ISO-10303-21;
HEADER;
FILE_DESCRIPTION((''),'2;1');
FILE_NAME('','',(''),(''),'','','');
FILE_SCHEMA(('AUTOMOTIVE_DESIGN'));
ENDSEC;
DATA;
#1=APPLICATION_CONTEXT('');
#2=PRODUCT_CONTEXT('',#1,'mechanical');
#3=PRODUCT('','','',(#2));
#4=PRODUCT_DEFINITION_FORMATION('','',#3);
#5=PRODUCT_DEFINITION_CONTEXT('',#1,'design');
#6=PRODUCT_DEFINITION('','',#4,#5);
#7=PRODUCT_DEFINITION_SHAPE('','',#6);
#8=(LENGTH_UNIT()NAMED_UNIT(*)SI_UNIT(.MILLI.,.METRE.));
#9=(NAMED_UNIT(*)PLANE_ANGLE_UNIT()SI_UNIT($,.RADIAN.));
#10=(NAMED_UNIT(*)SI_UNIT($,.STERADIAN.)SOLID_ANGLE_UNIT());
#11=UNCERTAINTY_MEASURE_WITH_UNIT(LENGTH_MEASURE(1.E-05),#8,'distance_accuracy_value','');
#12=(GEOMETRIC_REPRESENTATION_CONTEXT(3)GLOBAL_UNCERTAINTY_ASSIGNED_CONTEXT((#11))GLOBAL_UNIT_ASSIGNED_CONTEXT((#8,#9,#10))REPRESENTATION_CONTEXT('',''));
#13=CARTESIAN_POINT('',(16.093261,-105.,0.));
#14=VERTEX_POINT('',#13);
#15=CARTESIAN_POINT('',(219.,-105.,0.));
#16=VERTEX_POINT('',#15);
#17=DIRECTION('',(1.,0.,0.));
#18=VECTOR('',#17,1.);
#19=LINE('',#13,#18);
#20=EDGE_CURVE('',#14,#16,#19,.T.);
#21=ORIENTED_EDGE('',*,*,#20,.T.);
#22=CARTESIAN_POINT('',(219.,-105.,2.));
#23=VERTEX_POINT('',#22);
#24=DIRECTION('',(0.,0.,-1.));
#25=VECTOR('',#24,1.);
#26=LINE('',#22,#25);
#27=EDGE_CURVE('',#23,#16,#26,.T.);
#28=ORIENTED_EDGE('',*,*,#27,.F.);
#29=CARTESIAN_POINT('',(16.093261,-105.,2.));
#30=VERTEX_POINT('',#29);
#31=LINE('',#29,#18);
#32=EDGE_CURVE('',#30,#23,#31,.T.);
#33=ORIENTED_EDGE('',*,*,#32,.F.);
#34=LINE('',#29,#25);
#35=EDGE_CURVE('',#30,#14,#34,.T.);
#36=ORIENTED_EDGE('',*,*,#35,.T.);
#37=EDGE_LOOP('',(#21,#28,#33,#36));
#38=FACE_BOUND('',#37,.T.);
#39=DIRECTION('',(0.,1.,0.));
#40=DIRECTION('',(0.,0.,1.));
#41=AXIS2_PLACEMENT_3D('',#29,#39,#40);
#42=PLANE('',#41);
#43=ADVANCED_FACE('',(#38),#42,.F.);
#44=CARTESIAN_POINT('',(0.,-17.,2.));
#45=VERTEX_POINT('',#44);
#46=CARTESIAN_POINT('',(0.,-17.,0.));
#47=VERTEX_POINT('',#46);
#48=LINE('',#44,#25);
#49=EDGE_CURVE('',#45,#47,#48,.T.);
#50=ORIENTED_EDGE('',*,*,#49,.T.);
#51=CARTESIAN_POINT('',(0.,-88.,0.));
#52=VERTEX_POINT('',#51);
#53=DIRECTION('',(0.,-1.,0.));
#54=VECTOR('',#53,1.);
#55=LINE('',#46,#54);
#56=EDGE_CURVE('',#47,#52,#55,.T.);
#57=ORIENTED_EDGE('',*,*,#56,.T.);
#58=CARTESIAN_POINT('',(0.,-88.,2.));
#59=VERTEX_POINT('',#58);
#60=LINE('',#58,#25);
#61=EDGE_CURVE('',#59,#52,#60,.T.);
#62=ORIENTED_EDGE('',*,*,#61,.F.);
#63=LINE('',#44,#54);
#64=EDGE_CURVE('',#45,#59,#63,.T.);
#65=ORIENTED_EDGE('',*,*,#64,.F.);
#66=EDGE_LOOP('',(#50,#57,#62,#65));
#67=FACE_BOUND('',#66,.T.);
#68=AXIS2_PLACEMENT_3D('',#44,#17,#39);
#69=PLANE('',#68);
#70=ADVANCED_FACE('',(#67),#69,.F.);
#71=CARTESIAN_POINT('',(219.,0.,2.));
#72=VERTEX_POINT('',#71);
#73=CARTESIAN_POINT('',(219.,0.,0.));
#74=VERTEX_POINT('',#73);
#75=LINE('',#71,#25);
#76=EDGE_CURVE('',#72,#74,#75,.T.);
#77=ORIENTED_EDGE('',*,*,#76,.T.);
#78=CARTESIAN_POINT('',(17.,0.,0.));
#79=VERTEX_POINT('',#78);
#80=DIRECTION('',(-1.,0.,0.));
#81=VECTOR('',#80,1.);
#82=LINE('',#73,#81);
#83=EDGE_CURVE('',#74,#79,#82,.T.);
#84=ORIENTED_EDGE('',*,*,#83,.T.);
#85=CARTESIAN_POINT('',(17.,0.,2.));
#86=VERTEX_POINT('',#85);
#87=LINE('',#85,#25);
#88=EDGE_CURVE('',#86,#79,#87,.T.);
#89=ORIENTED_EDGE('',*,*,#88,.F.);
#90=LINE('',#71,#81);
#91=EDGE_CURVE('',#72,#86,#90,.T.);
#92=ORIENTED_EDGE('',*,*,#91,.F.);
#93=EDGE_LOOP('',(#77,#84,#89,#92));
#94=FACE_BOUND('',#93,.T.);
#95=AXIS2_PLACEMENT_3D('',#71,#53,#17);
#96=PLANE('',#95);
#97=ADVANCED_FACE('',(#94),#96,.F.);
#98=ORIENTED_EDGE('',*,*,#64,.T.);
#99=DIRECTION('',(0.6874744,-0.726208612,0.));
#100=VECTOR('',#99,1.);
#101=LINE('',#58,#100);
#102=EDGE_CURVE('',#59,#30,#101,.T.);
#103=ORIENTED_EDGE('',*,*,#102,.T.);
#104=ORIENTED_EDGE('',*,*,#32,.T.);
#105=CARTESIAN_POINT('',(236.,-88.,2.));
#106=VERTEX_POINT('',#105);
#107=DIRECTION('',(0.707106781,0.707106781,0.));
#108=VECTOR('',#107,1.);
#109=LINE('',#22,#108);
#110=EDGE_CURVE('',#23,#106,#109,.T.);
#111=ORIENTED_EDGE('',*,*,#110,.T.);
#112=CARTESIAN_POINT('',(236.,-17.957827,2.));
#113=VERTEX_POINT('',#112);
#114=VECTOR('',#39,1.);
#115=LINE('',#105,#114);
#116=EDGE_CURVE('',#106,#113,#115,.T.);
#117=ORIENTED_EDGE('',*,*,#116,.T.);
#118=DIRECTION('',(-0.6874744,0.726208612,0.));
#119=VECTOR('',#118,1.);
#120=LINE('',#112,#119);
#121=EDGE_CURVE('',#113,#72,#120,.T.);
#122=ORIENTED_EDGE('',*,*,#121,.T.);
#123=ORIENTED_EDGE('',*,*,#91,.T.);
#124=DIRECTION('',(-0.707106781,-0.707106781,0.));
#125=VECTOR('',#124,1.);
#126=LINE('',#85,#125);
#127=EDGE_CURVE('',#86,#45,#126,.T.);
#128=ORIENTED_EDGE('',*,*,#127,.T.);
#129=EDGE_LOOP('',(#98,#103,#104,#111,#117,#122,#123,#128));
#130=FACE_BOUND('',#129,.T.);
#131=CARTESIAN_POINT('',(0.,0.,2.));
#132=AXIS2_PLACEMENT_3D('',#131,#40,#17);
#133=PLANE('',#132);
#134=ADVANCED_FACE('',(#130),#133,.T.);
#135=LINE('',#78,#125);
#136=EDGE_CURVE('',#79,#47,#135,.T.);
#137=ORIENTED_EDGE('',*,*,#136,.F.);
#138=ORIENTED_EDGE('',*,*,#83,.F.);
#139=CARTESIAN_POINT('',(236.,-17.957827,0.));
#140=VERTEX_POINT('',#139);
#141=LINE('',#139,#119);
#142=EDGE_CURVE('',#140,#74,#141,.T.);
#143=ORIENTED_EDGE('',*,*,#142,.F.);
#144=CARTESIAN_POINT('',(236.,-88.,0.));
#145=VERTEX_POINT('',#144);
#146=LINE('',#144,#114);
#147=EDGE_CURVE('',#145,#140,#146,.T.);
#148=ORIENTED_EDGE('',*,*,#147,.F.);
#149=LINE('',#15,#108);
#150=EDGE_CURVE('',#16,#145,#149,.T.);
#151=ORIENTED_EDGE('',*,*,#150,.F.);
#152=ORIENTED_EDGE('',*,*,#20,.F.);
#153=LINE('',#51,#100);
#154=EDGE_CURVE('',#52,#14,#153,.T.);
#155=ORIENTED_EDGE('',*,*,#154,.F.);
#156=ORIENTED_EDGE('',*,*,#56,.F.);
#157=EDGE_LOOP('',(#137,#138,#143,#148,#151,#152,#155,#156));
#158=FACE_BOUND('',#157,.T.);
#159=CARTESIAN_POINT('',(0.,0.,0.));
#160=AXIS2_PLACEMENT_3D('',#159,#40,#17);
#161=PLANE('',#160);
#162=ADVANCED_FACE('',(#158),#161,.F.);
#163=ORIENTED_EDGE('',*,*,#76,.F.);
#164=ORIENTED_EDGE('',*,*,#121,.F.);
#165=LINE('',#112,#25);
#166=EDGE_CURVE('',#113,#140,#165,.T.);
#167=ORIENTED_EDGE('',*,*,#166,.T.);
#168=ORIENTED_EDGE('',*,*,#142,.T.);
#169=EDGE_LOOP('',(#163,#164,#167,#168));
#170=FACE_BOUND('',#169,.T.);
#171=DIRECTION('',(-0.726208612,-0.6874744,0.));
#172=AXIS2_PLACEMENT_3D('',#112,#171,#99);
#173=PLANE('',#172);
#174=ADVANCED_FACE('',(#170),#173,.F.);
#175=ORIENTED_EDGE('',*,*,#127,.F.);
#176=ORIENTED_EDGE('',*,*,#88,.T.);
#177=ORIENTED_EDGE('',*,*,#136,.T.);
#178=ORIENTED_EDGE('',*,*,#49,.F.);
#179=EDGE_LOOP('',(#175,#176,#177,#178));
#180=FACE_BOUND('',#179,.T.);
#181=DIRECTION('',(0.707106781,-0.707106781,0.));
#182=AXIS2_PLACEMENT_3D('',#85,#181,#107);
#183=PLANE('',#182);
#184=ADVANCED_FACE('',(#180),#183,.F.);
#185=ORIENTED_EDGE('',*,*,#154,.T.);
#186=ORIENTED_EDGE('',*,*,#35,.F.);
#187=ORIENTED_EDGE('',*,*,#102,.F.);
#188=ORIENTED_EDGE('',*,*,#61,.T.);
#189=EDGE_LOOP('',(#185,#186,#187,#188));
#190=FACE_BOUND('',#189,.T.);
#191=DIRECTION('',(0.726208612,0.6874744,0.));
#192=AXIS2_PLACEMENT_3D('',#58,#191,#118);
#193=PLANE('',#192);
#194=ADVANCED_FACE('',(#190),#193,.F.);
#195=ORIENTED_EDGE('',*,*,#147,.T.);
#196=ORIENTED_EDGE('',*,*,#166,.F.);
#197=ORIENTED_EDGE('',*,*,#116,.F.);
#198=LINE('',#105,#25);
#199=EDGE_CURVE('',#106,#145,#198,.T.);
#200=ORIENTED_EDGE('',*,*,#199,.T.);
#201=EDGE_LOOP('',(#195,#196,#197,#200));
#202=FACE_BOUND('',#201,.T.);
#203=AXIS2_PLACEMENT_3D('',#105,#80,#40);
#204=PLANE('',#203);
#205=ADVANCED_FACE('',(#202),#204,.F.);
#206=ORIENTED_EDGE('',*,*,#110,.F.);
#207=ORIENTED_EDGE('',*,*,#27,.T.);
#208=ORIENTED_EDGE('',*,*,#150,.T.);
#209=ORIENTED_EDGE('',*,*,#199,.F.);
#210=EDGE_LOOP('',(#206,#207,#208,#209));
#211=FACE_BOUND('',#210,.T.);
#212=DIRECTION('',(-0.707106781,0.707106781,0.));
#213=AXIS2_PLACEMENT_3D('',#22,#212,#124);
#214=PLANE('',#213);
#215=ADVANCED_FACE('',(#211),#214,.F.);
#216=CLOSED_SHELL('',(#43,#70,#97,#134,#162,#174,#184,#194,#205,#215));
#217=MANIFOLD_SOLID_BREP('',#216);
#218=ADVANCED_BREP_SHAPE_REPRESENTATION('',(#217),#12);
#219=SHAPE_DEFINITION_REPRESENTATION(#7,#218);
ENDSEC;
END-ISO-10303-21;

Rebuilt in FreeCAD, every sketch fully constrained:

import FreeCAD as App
import Part
import Sketcher

V = App.Vector
Q = App.Units.Quantity


def add_polygon(sketch, points):
    """Adds a closed chain of lines whose ends are joined by coincident constraints."""
    first, n = sketch.GeometryCount, len(points)
    for a, b in zip(points, points[1:] + points[:1]):
        sketch.addGeometry(Part.LineSegment(App.Vector(*a, 0), App.Vector(*b, 0)), False)
    for i in range(n):
        sketch.addConstraint(Sketcher.Constraint("Coincident", first + i, 2, first + (i + 1) % n, 1))

doc = App.newDocument("Part")
body = doc.addObject("PartDesign::Body", "Body")

# Sketch on XY plane
sketch1 = body.newObject("Sketcher::SketchObject", "Sketch")
sketch1.AttachmentSupport = (doc.getObject("XY_Plane"), [""])
sketch1.MapMode = "FlatFace"
add_polygon(sketch1, [(0, -17), (0, -88), (16, -105), (219, -105), (236, -88), (236, -18), (219, 0), (17, 0)])  # lines 0-7
sketch1.addConstraint(Sketcher.Constraint("Vertical", 0))
sketch1.addConstraint(Sketcher.Constraint("Horizontal", 2))
sketch1.addConstraint(Sketcher.Constraint("Vertical", 4))
sketch1.addConstraint(Sketcher.Constraint("Horizontal", 6))
sketch1.addConstraint(Sketcher.Constraint("PointOnObject", 0, 2, -2))
sketch1.addConstraint(Sketcher.Constraint("PointOnObject", 5, 2, -1))
sketch1.addConstraint(Sketcher.Constraint("Parallel", 1, 5))
sketch1.addConstraint(Sketcher.Constraint("Parallel", 3, 7))
sketch1.addConstraint(Sketcher.Constraint("Horizontal", 0, 2, 3, 2))
sketch1.addConstraint(Sketcher.Constraint("Vertical", 2, 2, 5, 2))
sketch1.addConstraint(Sketcher.Constraint("Equal", 3, 7))
sketch1.addConstraint(Sketcher.Constraint("DistanceX", 6, 2, 6, 1, 202.0))
sketch1.addConstraint(Sketcher.Constraint("DistanceY", 0, 2, 0, 1, 71.0))
sketch1.addConstraint(Sketcher.Constraint("Angle", 3, Q("45 deg")))
sketch1.addConstraint(Sketcher.Constraint("DistanceY", 0, 2, -1, 1, 88.0))
sketch1.addConstraint(Sketcher.Constraint("DistanceX", 2, 1, 2, 2, 202.906739))
pad1 = body.newObject("PartDesign::Pad", "Pad")
pad1.Profile = sketch1
pad1.Length = 2

doc.recompute()
